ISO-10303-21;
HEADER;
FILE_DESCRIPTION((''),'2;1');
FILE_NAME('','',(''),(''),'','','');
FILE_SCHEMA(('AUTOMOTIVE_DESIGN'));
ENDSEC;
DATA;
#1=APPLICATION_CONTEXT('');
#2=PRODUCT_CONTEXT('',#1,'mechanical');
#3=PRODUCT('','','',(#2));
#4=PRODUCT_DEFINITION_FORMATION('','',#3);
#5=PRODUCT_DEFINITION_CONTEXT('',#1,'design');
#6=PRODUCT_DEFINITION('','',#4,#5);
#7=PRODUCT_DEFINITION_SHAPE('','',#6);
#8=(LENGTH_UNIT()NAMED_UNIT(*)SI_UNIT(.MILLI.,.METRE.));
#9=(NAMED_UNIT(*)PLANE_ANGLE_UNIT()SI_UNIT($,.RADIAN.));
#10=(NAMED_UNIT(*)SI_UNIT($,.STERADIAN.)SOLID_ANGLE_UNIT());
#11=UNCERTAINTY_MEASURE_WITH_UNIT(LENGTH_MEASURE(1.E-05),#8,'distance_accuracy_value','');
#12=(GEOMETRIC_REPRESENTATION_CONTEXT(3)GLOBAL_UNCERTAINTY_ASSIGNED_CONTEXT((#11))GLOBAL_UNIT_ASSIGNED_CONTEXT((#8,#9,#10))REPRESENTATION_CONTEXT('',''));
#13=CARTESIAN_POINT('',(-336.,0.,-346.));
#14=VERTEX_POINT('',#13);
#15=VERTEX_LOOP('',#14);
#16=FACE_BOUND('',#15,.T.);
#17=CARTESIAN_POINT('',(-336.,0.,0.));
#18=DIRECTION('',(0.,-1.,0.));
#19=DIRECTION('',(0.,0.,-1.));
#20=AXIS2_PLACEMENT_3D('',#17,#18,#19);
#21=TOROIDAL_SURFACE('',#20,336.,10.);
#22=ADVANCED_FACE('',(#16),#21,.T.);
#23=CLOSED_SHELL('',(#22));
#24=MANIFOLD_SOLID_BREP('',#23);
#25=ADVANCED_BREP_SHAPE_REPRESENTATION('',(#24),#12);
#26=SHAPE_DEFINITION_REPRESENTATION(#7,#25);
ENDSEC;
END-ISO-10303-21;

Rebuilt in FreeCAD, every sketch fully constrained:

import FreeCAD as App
import Part
import Sketcher

V = App.Vector
Q = App.Units.Quantity

doc = App.newDocument("Part")
body = doc.addObject("PartDesign::Body", "Body")

# Sketch on XY plane
sketch1 = doc.addObject("Sketcher::SketchObject", "Sketch")
body.addObject(sketch1)
sketch1.AttachmentSupport = (doc.XY_Plane, [""])
sketch1.MapMode = "FlatFace"
sketch1.addGeometry(Part.Circle(V(0, 0, 0), V(0, 0, 1), 10), False)
sketch1.addGeometry(Part.LineSegment(V(-336, 0, 0), V(-336, 10, 0)), True)  # axis
sketch1.addConstraint([
    Sketcher.Constraint("Vertical", 1),
    Sketcher.Constraint("Coincident", 0, 3, -1, 1),
    Sketcher.Constraint("PointOnObject", 1, 1, -1),
    Sketcher.Constraint("Diameter", 0, Q("20 mm")),
    Sketcher.Constraint("DistanceY", 1, 1, 1, 2, Q("10 mm")),
    Sketcher.Constraint("DistanceX", 1, 1, -1, 1, Q("336 mm")),
])
revolution = doc.addObject("PartDesign::Revolution", "Revolution")
body.addObject(revolution)
revolution.Profile = sketch1
revolution.ReferenceAxis = (sketch1, ["Axis0"])
revolution.Angle = 360

doc.recompute()
